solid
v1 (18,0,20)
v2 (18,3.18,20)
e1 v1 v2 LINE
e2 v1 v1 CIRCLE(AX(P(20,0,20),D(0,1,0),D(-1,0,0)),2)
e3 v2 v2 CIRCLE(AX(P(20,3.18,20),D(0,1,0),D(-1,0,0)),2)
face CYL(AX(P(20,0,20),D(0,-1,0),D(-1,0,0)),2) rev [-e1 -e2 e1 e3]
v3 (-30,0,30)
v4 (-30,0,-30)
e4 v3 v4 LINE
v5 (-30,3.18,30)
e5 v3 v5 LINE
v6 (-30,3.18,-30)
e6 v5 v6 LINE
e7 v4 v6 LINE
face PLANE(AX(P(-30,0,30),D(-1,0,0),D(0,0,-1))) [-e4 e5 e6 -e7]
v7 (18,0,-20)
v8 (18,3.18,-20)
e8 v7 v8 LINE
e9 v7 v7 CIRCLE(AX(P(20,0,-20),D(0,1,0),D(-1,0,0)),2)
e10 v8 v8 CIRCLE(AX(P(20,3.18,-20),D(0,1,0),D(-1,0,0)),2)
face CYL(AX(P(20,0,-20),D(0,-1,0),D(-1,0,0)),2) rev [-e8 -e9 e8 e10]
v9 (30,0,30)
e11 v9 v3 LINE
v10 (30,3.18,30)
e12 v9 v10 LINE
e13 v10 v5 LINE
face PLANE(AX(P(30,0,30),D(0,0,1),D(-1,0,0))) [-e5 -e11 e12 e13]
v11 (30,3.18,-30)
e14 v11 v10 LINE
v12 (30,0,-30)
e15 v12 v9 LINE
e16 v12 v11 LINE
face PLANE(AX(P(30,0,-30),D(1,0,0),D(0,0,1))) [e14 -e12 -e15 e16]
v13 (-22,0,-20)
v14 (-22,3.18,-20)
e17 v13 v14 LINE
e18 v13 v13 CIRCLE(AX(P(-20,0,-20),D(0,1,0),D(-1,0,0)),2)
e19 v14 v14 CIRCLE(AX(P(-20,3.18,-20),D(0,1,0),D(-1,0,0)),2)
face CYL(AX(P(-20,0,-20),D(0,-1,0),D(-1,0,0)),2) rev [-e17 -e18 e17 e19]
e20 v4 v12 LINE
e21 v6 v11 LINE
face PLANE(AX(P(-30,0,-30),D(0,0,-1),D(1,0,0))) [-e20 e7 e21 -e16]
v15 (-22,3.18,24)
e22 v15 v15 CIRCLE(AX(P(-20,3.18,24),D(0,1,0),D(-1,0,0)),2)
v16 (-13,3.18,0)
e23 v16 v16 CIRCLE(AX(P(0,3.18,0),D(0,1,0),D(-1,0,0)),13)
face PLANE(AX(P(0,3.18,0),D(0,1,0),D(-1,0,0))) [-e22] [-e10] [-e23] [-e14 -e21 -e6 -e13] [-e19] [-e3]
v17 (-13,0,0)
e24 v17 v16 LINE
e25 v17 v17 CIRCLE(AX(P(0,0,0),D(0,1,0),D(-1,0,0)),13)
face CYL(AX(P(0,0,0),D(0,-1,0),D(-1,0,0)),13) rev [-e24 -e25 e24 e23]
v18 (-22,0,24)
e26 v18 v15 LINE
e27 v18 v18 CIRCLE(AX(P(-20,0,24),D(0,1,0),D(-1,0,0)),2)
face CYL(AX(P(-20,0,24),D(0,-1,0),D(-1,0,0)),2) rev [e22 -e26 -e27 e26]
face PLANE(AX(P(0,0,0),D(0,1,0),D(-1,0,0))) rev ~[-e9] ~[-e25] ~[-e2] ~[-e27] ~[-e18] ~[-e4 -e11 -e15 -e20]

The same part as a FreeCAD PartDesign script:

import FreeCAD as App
import Part
import Sketcher
from FreeCAD import Vector
Q = App.Units.Quantity


def add_polygon(sketch, points):
    """Adds a closed chain of lines whose ends are joined by coincident constraints."""
    first, n = sketch.GeometryCount, len(points)
    for a, b in zip(points, points[1:] + points[:1]):
        sketch.addGeometry(Part.LineSegment(App.Vector(*a, 0), App.Vector(*b, 0)), False)
    for i in range(n):
        sketch.addConstraint(Sketcher.Constraint("Coincident", first + i, 2, first + (i + 1) % n, 1))

doc = App.newDocument("Part")
body = doc.addObject("PartDesign::Body", "Body")

sketch1 = doc.addObject("Sketcher::SketchObject", "Sketch")
body.addObject(sketch1)
sketch1.AttachmentSupport = (doc.XZ_Plane, [""])
sketch1.MapMode = "FlatFace"
add_polygon(sketch1, [(-30, 30), (30, 30), (30, -30), (-30, -30)])
sketch1.addGeometry(Part.Circle(Vector(20, -20, 0), Vector(0, 0, 1), 2), False)
sketch1.addGeometry(Part.Circle(Vector(-20, -20, 0), Vector(0, 0, 1), 2), False)
sketch1.addGeometry(Part.Circle(Vector(20, 20, 0), Vector(0, 0, 1), 2), False)
sketch1.addGeometry(Part.Circle(Vector(0, 0, 0), Vector(0, 0, 1), 13), False)
sketch1.addGeometry(Part.Circle(Vector(-20, 24, 0), Vector(0, 0, 1), 2), False)
sketch1.addConstraint(Sketcher.Constraint("Horizontal", 0))
sketch1.addConstraint(Sketcher.Constraint("Vertical", 1))
sketch1.addConstraint(Sketcher.Constraint("Horizontal", 2))
sketch1.addConstraint(Sketcher.Constraint("Vertical", 3))
sketch1.addConstraint(Sketcher.Constraint("Coincident", 7, 3, -1, 1))
sketch1.addConstraint(Sketcher.Constraint("Equal", 4, 5))
sketch1.addConstraint(Sketcher.Constraint("Equal", 5, 6))
sketch1.addConstraint(Sketcher.Constraint("Equal", 6, 8))
sketch1.addConstraint(Sketcher.Constraint("Symmetric", 5, 3, 6, 3, -1, 1))
sketch1.addConstraint(Sketcher.Constraint("Symmetric", 0, 2, 2, 2, -1, 1))
sketch1.addConstraint(Sketcher.Constraint("Symmetric", 4, 3, 5, 3, -2))
sketch1.addConstraint(Sketcher.Constraint("Vertical", 5, 3, 8, 3))
sketch1.addConstraint(Sketcher.Constraint("Equal", 2, 1))
sketch1.addConstraint(Sketcher.Constraint("Diameter", 4, Q("4 mm")))
sketch1.addConstraint(Sketcher.Constraint("Diameter", 7, Q("26 mm")))
sketch1.addConstraint(Sketcher.Constraint("DistanceX", 0, 1, 0, 2, Q("60 mm")))
sketch1.addConstraint(Sketcher.Constraint("DistanceX", -1, 1, 4, 3, Q("20 mm")))
sketch1.addConstraint(Sketcher.Constraint("DistanceY", 4, 3, -1, 1, Q("20 mm")))
sketch1.addConstraint(Sketcher.Constraint("DistanceY", 6, 3, 8, 3, Q("4 mm")))
pad1 = doc.addObject("PartDesign::Pad", "Pad")
body.addObject(pad1)
pad1.Profile = sketch1
pad1.Length = 3.18
pad1.Reversed = True

doc.recompute()
